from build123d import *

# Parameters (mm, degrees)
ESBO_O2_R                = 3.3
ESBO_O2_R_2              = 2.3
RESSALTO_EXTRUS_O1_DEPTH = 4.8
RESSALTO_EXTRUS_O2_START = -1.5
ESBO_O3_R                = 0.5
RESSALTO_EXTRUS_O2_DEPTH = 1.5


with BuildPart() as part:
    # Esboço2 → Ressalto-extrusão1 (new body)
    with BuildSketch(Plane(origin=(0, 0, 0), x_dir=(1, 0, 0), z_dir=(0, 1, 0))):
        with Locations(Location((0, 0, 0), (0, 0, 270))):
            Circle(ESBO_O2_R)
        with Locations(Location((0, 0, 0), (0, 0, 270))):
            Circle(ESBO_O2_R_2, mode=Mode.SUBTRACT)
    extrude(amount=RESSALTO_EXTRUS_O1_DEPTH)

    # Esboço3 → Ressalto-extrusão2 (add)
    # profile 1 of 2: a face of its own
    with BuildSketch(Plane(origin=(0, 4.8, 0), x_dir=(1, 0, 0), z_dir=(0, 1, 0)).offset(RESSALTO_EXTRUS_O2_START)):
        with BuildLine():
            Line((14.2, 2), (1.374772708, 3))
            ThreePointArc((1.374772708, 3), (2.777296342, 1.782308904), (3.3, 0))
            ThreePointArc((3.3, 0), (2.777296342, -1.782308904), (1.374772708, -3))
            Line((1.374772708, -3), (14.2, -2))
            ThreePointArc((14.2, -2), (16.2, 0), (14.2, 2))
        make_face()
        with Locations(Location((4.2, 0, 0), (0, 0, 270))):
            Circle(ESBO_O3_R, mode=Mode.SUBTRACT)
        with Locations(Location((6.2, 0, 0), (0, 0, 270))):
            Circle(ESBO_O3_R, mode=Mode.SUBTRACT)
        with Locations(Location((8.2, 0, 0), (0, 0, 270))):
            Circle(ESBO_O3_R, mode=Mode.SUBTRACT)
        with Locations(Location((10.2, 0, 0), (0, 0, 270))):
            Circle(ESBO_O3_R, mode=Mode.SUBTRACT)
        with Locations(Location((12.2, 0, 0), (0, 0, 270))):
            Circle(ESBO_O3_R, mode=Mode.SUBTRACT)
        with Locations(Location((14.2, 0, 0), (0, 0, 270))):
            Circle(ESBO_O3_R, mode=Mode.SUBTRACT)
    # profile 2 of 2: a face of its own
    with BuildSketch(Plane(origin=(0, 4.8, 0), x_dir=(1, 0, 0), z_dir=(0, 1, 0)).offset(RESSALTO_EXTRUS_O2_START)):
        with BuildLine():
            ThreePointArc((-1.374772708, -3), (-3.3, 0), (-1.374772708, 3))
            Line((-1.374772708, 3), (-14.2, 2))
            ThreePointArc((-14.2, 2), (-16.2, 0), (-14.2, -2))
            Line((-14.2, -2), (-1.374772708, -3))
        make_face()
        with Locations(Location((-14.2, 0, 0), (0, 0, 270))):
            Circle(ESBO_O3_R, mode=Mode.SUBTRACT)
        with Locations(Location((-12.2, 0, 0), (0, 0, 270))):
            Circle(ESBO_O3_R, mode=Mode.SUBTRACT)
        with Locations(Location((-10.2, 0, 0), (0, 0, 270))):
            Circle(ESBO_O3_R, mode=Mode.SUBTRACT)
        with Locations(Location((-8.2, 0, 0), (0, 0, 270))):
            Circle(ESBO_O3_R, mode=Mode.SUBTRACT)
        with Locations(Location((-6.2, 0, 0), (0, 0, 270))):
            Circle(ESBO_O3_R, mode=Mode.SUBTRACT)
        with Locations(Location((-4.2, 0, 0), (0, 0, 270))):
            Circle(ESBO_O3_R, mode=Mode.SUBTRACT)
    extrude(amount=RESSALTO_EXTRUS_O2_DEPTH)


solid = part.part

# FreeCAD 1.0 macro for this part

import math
import FreeCAD as App
import Part
import Sketcher
from FreeCAD import Vector

doc = App.newDocument("Part")
body = doc.addObject("PartDesign::Body", "Body")

sketch1 = doc.addObject("Sketcher::SketchObject", "Sketch")
body.addObject(sketch1)
sketch1.AttachmentSupport = (doc.XZ_Plane, [""])
sketch1.MapMode = "FlatFace"
sketch1.addGeometry([
    Part.Circle(Vector(0, 0, 0), Vector(0, 0, 1), 3.3),
    Part.Circle(Vector(0, 0, 0), Vector(0, 0, 1), 2.3),
], False)
sketch1.addConstraint([
    Sketcher.Constraint("Coincident", 0, 3, -1, 1),
    Sketcher.Constraint("Coincident", 1, 3, -1, 1),
    Sketcher.Constraint("Diameter", 0, 6.6),
    Sketcher.Constraint("Diameter", 1, 4.6),
])
pad1 = doc.addObject("PartDesign::Pad", "Pad")
body.addObject(pad1)
pad1.Profile = sketch1
pad1.Length = 4.8
pad1.Reversed = True

sketch2 = doc.addObject("Sketcher::SketchObject", "Sketch001")
body.addObject(sketch2)
sketch2.AttachmentSupport = (doc.XZ_Plane, [""])
sketch2.MapMode = "FlatFace"
sketch2.AttachmentOffset = App.Placement(Vector(0, 0, -3.3), App.Rotation())
sketch2.addGeometry([
    Part.LineSegment(Vector(14.2, -2, 0), Vector(1.4, -3, 0)),
    Part.ArcOfCircle(Part.Circle(Vector(0, 0, 0), Vector(0, 0, 1), 3.3), math.radians(-65), math.radians(0)),
    Part.ArcOfCircle(Part.Circle(Vector(0, 0, 0), Vector(0, 0, 1), 3.3), math.radians(0), math.radians(65)),
    Part.LineSegment(Vector(1.4, 3, 0), Vector(14.2, 2, 0)),
    Part.ArcOfCircle(Part.Circle(Vector(14.2, 0, 0), Vector(0, 0, 1), 2), math.radians(-90), math.radians(90)),
    Part.Circle(Vector(4.2, 0, 0), Vector(0, 0, 1), 0.5),
    Part.Circle(Vector(6.2, 0, 0), Vector(0, 0, 1), 0.5),
    Part.Circle(Vector(8.2, 0, 0), Vector(0, 0, 1), 0.5),
    Part.Circle(Vector(10.2, 0, 0), Vector(0, 0, 1), 0.5),
    Part.Circle(Vector(12.2, 0, 0), Vector(0, 0, 1), 0.5),
    Part.Circle(Vector(14.2, 0, 0), Vector(0, 0, 1), 0.5),
    Part.ArcOfCircle(Part.Circle(Vector(0, 0, 0), Vector(0, 0, 1), 3.3), math.radians(115), math.radians(245)),
    Part.LineSegment(Vector(-1.4, -3, 0), Vector(-14.2, -2, 0)),
    Part.ArcOfCircle(Part.Circle(Vector(-14.2, 0, 0), Vector(0, 0, 1), 2), math.radians(90), math.radians(270)),
    Part.LineSegment(Vector(-14.2, 2, 0), Vector(-1.4, 3, 0)),
    Part.Circle(Vector(-14.2, 0, 0), Vector(0, 0, 1), 0.5),
    Part.Circle(Vector(-12.2, 0, 0), Vector(0, 0, 1), 0.5),
    Part.Circle(Vector(-10.2, 0, 0), Vector(0, 0, 1), 0.5),
    Part.Circle(Vector(-8.2, 0, 0), Vector(0, 0, 1), 0.5),
    Part.Circle(Vector(-6.2, 0, 0), Vector(0, 0, 1), 0.5),
    Part.Circle(Vector(-4.2, 0, 0), Vector(0, 0, 1), 0.5),
], False)
sketch2.addConstraint([
    Sketcher.Constraint("Coincident", 0, 2, 1, 1),
    Sketcher.Constraint("Tangent", 1, 2, 2, 1),
    Sketcher.Constraint("Coincident", 2, 2, 3, 1),
    Sketcher.Constraint("Coincident", 3, 2, 4, 2),
    Sketcher.Constraint("Coincident", 4, 1, 0, 1),
    Sketcher.Constraint("Coincident", 11, 2, 12, 1),
    Sketcher.Constraint("Coincident", 12, 2, 13, 2),
    Sketcher.Constraint("Coincident", 13, 1, 14, 1),
    Sketcher.Constraint("Coincident", 14, 2, 11, 1),
    Sketcher.Constraint("Coincident", 1, 3, -1, 1),
    Sketcher.Constraint("Coincident", 11, 3, -1, 1),
    Sketcher.Constraint("Coincident", 10, 3, 4, 3),
    Sketcher.Constraint("Coincident", 15, 3, 13, 3),
    Sketcher.Constraint("Equal", 1, 2),
    Sketcher.Constraint("Equal", 5, 6),
    Sketcher.Constraint("Equal", 6, 7),
    Sketcher.Constraint("Equal", 7, 8),
    Sketcher.Constraint("Equal", 8, 9),
    Sketcher.Constraint("Equal", 9, 10),
    Sketcher.Constraint("Equal", 2, 11),
    Sketcher.Constraint("Equal", 4, 13),
    Sketcher.Constraint("Equal", 10, 15),
    Sketcher.Constraint("Equal", 15, 16),
    Sketcher.Constraint("Equal", 16, 17),
    Sketcher.Constraint("Equal", 17, 18),
    Sketcher.Constraint("Equal", 18, 19),
    Sketcher.Constraint("Equal", 19, 20),
    Sketcher.Constraint("Symmetric", 4, 3, 13, 3, -1, 1),
    Sketcher.Constraint("Symmetric", 9, 3, 16, 3, -1, 1),
    Sketcher.Constraint("Symmetric", 8, 3, 17, 3, -1, 1),
    Sketcher.Constraint("Symmetric", 7, 3, 18, 3, -1, 1),
    Sketcher.Constraint("Symmetric", 6, 3, 19, 3, -1, 1),
    Sketcher.Constraint("Symmetric", 5, 3, 20, 3, -1, 1),
    Sketcher.Constraint("Symmetric", 4, 1, 12, 2, -2),
    Sketcher.Constraint("PointOnObject", 5, 3, -1),
    Sketcher.Constraint("PointOnObject", 6, 3, -1),
    Sketcher.Constraint("PointOnObject", 7, 3, -1),
    Sketcher.Constraint("PointOnObject", 8, 3, -1),
    Sketcher.Constraint("PointOnObject", 9, 3, -1),
    Sketcher.Constraint("PointOnObject", 1, 2, -1),
    Sketcher.Constraint("Parallel", 3, 12),
    Sketcher.Constraint("Parallel", 0, 14),
    Sketcher.Constraint("Horizontal", 0, 2, 11, 2),
    Sketcher.Constraint("Horizontal", 2, 2, 14, 2),
    Sketcher.Constraint("Vertical", 0, 2, 2, 2),
    Sketcher.Constraint("Vertical", 10, 3, 3, 2),
    Sketcher.Constraint("Diameter", 5, 1.0),
    Sketcher.Constraint("Radius", 4, 2.0),
    Sketcher.Constraint("Radius", 1, 3.3),
    Sketcher.Constraint("DistanceY", 0, 2, -1, 1, 3.0),
    Sketcher.Constraint("DistanceX", 5, 3, 4, 3, 10.0),
    Sketcher.Constraint("DistanceX", 5, 3, 6, 3, 2.0),
    Sketcher.Constraint("DistanceX", 6, 3, 7, 3, 2.0),
    Sketcher.Constraint("DistanceX", 7, 3, 8, 3, 2.0),
    Sketcher.Constraint("DistanceX", 9, 3, 4, 3, 2.0),
    Sketcher.Constraint("DistanceX", -1, 1, 4, 3, 14.2),
])
pad2 = doc.addObject("PartDesign::Pad", "Pad001")
body.addObject(pad2)
pad2.Profile = sketch2
pad2.Length = 1.5
pad2.Reversed = True

doc.recompute()
